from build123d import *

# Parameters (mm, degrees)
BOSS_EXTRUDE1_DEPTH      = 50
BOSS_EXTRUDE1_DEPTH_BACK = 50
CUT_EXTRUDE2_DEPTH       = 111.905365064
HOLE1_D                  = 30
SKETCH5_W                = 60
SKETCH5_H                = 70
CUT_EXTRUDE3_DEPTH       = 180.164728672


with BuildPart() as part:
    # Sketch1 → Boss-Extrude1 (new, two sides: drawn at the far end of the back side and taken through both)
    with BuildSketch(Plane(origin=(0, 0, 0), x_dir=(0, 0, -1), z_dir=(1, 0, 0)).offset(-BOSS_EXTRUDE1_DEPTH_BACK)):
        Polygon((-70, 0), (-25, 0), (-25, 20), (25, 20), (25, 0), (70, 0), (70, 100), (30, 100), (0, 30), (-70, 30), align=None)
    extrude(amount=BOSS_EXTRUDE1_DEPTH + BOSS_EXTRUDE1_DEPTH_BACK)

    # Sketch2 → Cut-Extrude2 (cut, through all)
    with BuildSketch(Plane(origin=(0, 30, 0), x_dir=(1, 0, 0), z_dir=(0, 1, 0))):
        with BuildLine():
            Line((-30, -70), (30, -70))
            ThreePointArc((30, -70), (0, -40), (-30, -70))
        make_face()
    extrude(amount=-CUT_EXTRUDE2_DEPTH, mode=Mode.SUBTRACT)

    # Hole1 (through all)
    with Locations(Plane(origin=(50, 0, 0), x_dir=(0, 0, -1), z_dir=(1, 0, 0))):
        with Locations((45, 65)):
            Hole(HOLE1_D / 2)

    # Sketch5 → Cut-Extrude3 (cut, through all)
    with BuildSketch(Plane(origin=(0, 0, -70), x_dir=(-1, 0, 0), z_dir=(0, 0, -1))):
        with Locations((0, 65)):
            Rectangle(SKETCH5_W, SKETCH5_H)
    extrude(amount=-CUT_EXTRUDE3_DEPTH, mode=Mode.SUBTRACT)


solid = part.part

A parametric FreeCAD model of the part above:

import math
import FreeCAD as App
import Part
import Sketcher
from FreeCAD import Vector
Q = App.Units.Quantity


def add_polygon(sketch, points):
    """Adds a closed chain of lines whose ends are joined by coincident constraints."""
    first, n = sketch.GeometryCount, len(points)
    for a, b in zip(points, points[1:] + points[:1]):
        sketch.addGeometry(Part.LineSegment(App.Vector(*a, 0), App.Vector(*b, 0)), False)
    for i in range(n):
        sketch.addConstraint(Sketcher.Constraint("Coincident", first + i, 2, first + (i + 1) % n, 1))

doc = App.newDocument("Part")
params = doc.addObject("Spreadsheet::Sheet", "Params")
for row, (alias, value) in enumerate([
    ("sketch1_width", "20 mm"),
    ("sketch1_width2", "100 mm"),
    ("sketch1_width3", "30 mm"),
    ("sketch1_height", "45 mm"),
    ("sketch1_height2", "50 mm"),
    ("pad1_length", "50 mm"),
    ("pad1_length2", "50 mm"),
    ("sketch2_radius", "30 mm"),
    ("sketch3_diameter", "30 mm"),
    ("hole_diameter", "30 mm"),
    ("sketch4_width", "60 mm"),
    ("sketch4_height", "70 mm"),
], start=1):
    params.set(f"A{row}", alias)
    params.set(f"B{row}", "=" + value)
    params.setAlias(f"B{row}", alias)

body = doc.addObject("PartDesign::Body", "Body")

sketch1 = body.newObject("Sketcher::SketchObject", "Sketch")
sketch1.AttachmentSupport = (doc.getObject("YZ_Plane"), [""])
sketch1.MapMode = "FlatFace"
add_polygon(sketch1, [(0, 70), (0, 25), (20, 25), (20, -25), (0, -25), (0, -70), (100, -70), (100, -30), (30, 0), (30, 70)])
sketch1.addConstraint(Sketcher.Constraint("Vertical", 0))
sketch1.addConstraint(Sketcher.Constraint("Horizontal", 1))
sketch1.addConstraint(Sketcher.Constraint("Vertical", 2))
sketch1.addConstraint(Sketcher.Constraint("Horizontal", 3))
sketch1.addConstraint(Sketcher.Constraint("Vertical", 4))
sketch1.addConstraint(Sketcher.Constraint("Horizontal", 5))
sketch1.addConstraint(Sketcher.Constraint("Vertical", 6))
sketch1.addConstraint(Sketcher.Constraint("Vertical", 8))
sketch1.addConstraint(Sketcher.Constraint("Horizontal", 9))
sketch1.addConstraint(Sketcher.Constraint("Symmetric", 0, 2, 3, 2, -1, 1))
sketch1.addConstraint(Sketcher.Constraint("Symmetric", 4, 2, 9, 2, -1))
sketch1.addConstraint(Sketcher.Constraint("PointOnObject", 7, 2, -1))
sketch1.addConstraint(Sketcher.Constraint("DistanceX", 1, 1, 1, 2, Q("20 mm")))
sketch1.addConstraint(Sketcher.Constraint("DistanceX", 5, 1, 5, 2, Q("100 mm")))
sketch1.addConstraint(Sketcher.Constraint("DistanceX", 9, 2, 9, 1, Q("30 mm")))
sketch1.addConstraint(Sketcher.Constraint("DistanceY", 0, 2, 0, 1, Q("45 mm")))
sketch1.addConstraint(Sketcher.Constraint("DistanceY", 2, 2, 2, 1, Q("50 mm")))
sketch1.addConstraint(Sketcher.Constraint("DistanceY", 6, 1, 6, 2, Q("40 mm")))
sketch1.setExpression("Constraints[22]", "Params.sketch1_width")
sketch1.setExpression("Constraints[23]", "Params.sketch1_width2")
sketch1.setExpression("Constraints[24]", "Params.sketch1_width3")
sketch1.setExpression("Constraints[25]", "Params.sketch1_height")
sketch1.setExpression("Constraints[26]", "Params.sketch1_height2")
pad1 = body.newObject("PartDesign::Pad", "Pad")
pad1.Profile = sketch1
pad1.Type = "TwoLengths"
pad1.setExpression("Length", "Params.pad1_length")
pad1.setExpression("Length2", "Params.pad1_length2")

sketch2 = body.newObject("Sketcher::SketchObject", "Sketch001")
sketch2.AttachmentSupport = (doc.getObject("XZ_Plane"), [""])
sketch2.MapMode = "FlatFace"
sketch2.AttachmentOffset = App.Placement(Vector(0, 0, -30), App.Rotation())
sketch2.addGeometry(Part.LineSegment(Vector(-30, 70, 0), Vector(30, 70, 0)), False)
sketch2.addGeometry(Part.ArcOfCircle(Part.Circle(Vector(0, 70, 0), Vector(0, 0, 1), 30), math.radians(180), math.radians(360)), False)
sketch2.addConstraint(Sketcher.Constraint("Coincident", 0, 1, 1, 1))
sketch2.addConstraint(Sketcher.Constraint("Coincident", 1, 2, 0, 2))
sketch2.addConstraint(Sketcher.Constraint("Horizontal", 0))
sketch2.addConstraint(Sketcher.Constraint("PointOnObject", 1, 3, -2))
sketch2.addConstraint(Sketcher.Constraint("Horizontal", 1, 3, 0, 1))
sketch2.addConstraint(Sketcher.Constraint("Radius", 1, Q("30 mm")))
sketch2.addConstraint(Sketcher.Constraint("DistanceY", -1, 1, 1, 3, Q("70 mm")))
sketch2.setExpression("Constraints[5]", "Params.sketch2_radius")
pocket1 = body.newObject("PartDesign::Pocket", "Pocket")
pocket1.Profile = sketch2
pocket1.Type = "ThroughAll"
pocket1.Reversed = True

sketch3 = body.newObject("Sketcher::SketchObject", "Sketch002")
sketch3.AttachmentSupport = (doc.getObject("YZ_Plane"), [""])
sketch3.MapMode = "FlatFace"
sketch3.AttachmentOffset = App.Placement(Vector(0, 0, 50), App.Rotation())
sketch3.addGeometry(Part.Circle(Vector(65, -45, 0), Vector(0, 0, 1), 15), False)
sketch3.addConstraint(Sketcher.Constraint("Diameter", 0, Q("30 mm")))
sketch3.addConstraint(Sketcher.Constraint("DistanceX", -1, 1, 0, 3, Q("65 mm")))
sketch3.addConstraint(Sketcher.Constraint("DistanceY", 0, 3, -1, 1, Q("45 mm")))
sketch3.setExpression("Constraints[0]", "Params.sketch3_diameter")
doc.recompute()
hole = body.newObject("PartDesign::Hole", "Hole")
hole.Profile = sketch3
hole.ThreadType = "None"
hole.setExpression("Diameter", "Params.hole_diameter")
hole.DepthType = "ThroughAll"

sketch4 = body.newObject("Sketcher::SketchObject", "Sketch003")
sketch4.AttachmentSupport = (doc.getObject("XY_Plane"), [""])
sketch4.MapMode = "FlatFace"
sketch4.AttachmentOffset = App.Placement(Vector(0, 0, -70), App.Rotation())
add_polygon(sketch4, [(30, 100), (30, 30), (-30, 30), (-30, 100)])
sketch4.addConstraint(Sketcher.Constraint("Vertical", 0))
sketch4.addConstraint(Sketcher.Constraint("Horizontal", 1))
sketch4.addConstraint(Sketcher.Constraint("Vertical", 2))
sketch4.addConstraint(Sketcher.Constraint("Horizontal", 3))
sketch4.addConstraint(Sketcher.Constraint("DistanceX", 1, 2, 1, 1, Q("60 mm")))
sketch4.addConstraint(Sketcher.Constraint("DistanceY", 0, 2, 0, 1, Q("70 mm")))
sketch4.addConstraint(Sketcher.Constraint("DistanceX", -1, 1, 0, 2, Q("30 mm")))
sketch4.addConstraint(Sketcher.Constraint("DistanceY", -1, 1, 0, 2, Q("30 mm")))
sketch4.setExpression("Constraints[8]", "Params.sketch4_width")
sketch4.setExpression("Constraints[9]", "Params.sketch4_height")
pocket2 = body.newObject("PartDesign::Pocket", "Pocket001")
pocket2.Profile = sketch4
pocket2.Type = "ThroughAll"
pocket2.Reversed = True

doc.recompute()
